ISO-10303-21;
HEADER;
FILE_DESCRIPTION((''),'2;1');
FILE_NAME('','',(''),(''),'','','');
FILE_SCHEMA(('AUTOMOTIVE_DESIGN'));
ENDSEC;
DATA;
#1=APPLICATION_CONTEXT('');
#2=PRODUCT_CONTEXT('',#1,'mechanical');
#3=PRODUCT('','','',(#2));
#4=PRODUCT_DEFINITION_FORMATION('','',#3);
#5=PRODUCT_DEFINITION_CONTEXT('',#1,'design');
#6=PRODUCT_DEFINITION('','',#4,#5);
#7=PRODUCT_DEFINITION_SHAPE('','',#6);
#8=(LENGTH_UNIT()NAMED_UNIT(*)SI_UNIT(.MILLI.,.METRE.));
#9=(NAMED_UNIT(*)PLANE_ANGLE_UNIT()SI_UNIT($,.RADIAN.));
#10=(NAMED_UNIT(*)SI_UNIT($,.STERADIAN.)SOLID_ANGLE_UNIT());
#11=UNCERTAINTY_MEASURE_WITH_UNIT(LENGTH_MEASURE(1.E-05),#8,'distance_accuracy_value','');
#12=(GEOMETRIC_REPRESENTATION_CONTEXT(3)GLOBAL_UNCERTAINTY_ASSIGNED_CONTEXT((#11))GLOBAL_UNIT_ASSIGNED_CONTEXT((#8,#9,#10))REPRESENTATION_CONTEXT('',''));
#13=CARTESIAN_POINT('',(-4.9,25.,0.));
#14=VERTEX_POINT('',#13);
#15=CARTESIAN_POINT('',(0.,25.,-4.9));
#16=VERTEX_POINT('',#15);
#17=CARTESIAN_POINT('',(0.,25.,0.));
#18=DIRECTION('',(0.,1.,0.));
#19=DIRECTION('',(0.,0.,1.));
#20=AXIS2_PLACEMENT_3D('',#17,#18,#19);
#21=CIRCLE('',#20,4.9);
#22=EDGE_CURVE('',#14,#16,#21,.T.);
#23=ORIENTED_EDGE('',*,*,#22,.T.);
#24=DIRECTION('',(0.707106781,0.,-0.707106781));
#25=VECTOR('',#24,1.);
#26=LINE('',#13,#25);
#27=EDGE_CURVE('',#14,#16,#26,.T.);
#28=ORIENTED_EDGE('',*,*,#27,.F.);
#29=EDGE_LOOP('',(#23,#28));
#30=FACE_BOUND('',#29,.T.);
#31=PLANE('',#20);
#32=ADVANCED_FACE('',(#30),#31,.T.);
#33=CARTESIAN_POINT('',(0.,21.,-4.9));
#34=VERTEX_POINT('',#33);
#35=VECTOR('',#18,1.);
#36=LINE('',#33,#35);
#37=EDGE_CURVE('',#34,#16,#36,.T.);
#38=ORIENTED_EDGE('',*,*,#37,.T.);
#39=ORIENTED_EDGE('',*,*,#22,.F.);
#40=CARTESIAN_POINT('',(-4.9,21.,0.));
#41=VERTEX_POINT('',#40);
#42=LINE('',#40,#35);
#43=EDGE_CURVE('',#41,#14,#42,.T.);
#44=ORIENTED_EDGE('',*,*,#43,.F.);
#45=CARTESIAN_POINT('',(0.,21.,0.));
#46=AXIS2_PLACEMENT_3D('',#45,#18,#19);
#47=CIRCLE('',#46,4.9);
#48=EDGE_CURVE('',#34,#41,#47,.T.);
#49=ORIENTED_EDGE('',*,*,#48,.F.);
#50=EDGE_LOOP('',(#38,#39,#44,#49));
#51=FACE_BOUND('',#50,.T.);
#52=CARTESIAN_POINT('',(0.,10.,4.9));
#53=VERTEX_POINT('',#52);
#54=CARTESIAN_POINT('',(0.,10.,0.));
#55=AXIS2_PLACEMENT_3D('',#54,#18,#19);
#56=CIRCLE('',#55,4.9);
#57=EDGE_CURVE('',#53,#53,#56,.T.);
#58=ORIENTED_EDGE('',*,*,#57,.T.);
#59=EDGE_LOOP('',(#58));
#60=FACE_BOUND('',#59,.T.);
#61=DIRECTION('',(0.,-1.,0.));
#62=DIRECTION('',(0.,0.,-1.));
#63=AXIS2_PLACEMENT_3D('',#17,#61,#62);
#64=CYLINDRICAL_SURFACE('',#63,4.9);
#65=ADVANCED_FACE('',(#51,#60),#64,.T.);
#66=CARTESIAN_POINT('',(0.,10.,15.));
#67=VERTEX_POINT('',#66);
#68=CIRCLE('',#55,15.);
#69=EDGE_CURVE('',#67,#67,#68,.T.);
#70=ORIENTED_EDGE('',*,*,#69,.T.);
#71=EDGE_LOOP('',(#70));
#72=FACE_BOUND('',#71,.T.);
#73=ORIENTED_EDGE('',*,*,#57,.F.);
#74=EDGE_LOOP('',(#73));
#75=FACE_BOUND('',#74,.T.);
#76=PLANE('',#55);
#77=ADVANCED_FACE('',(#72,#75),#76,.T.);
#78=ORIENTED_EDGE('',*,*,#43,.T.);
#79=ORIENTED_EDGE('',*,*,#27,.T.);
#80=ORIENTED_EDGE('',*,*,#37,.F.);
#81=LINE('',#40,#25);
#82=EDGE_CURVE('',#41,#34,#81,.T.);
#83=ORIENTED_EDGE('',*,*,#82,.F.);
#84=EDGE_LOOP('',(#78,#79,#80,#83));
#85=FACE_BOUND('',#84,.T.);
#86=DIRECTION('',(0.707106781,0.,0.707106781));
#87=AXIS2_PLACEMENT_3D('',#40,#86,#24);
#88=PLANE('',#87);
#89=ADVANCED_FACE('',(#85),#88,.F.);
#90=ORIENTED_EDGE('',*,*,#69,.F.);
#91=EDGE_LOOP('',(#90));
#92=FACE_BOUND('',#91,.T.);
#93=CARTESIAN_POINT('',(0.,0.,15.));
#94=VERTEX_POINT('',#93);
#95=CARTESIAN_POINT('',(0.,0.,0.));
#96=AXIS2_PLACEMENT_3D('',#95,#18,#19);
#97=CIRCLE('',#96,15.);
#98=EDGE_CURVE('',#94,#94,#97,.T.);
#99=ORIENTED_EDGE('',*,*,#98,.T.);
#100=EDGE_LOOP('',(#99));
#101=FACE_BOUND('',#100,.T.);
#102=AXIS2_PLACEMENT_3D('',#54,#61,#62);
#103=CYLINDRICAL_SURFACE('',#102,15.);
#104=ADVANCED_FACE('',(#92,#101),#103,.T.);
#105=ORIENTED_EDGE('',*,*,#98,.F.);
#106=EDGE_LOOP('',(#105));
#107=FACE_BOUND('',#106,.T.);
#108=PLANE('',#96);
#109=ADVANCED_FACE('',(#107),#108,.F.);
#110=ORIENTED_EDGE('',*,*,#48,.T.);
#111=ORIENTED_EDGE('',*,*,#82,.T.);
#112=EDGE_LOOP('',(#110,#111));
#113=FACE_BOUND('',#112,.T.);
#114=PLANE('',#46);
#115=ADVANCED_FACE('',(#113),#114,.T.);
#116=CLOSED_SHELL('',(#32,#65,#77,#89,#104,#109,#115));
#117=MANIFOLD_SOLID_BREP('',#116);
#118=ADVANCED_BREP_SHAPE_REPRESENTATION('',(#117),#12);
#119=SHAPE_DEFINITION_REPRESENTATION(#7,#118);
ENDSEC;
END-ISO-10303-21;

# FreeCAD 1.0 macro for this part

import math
import FreeCAD as App
import Part
import Sketcher

doc = App.newDocument("Part")
params = doc.addObject("Spreadsheet::Sheet", "Params")
for row, (alias, value) in enumerate([
    ("sketch1_diameter", "30 mm"),
    ("pad1_length", "10 mm"),
    ("sketch2_diameter", "9.8 mm"),
    ("pad2_length", "15 mm"),
    ("sketch3_radius", "4.9 mm"),
    ("pocket1_length", "4 mm"),
], start=1):
    params.set(f"A{row}", alias)
    params.set(f"B{row}", "=" + value)
    params.setAlias(f"B{row}", alias)

body = doc.addObject("PartDesign::Body", "Body")

sketch1 = doc.addObject("Sketcher::SketchObject", "Sketch")
body.addObject(sketch1)
sketch1.AttachmentSupport = (doc.XZ_Plane, [""])
sketch1.MapMode = "FlatFace"
sketch1.addGeometry(Part.Circle(App.Vector(0, 0, 0), App.Vector(0, 0, 1), 15), False)
sketch1.addConstraint(Sketcher.Constraint("Coincident", 0, 3, -1, 1))
sketch1.addConstraint(Sketcher.Constraint("Diameter", 0, 30.0))
sketch1.setExpression("Constraints[1]", "Params.sketch1_diameter")
pad1 = doc.addObject("PartDesign::Pad", "Pad")
body.addObject(pad1)
pad1.Profile = sketch1
pad1.setExpression("Length", "Params.pad1_length")
pad1.Reversed = True

sketch2 = doc.addObject("Sketcher::SketchObject", "Sketch001")
body.addObject(sketch2)
sketch2.AttachmentSupport = (doc.XZ_Plane, [""])
sketch2.MapMode = "FlatFace"
sketch2.AttachmentOffset = App.Placement(App.Vector(0, 0, -10), App.Rotation())
sketch2.addGeometry(Part.Circle(App.Vector(0, 0, 0), App.Vector(0, 0, 1), 4.9), False)
sketch2.addConstraint(Sketcher.Constraint("Coincident", 0, 3, -1, 1))
sketch2.addConstraint(Sketcher.Constraint("Diameter", 0, 9.8))
sketch2.setExpression("Constraints[1]", "Params.sketch2_diameter")
pad2 = doc.addObject("PartDesign::Pad", "Pad001")
body.addObject(pad2)
pad2.Profile = sketch2
pad2.setExpression("Length", "Params.pad2_length")
pad2.Reversed = True

sketch3 = doc.addObject("Sketcher::SketchObject", "Sketch002")
body.addObject(sketch3)
sketch3.AttachmentSupport = (doc.XZ_Plane, [""])
sketch3.MapMode = "FlatFace"
sketch3.AttachmentOffset = App.Placement(App.Vector(0, 0, -25), App.Rotation())
sketch3.addGeometry(Part.LineSegment(App.Vector(-4.9, 0, 0), App.Vector(0, -4.9, 0)), False)
sketch3.addGeometry(Part.ArcOfCircle(Part.Circle(App.Vector(0, 0, 0), App.Vector(0, 0, 1), 4.9), math.radians(180), math.radians(270)), False)
sketch3.addConstraint(Sketcher.Constraint("Coincident", 0, 1, 1, 1))
sketch3.addConstraint(Sketcher.Constraint("Coincident", 1, 2, 0, 2))
sketch3.addConstraint(Sketcher.Constraint("Coincident", 1, 3, -1, 1))
sketch3.addConstraint(Sketcher.Constraint("PointOnObject", 0, 1, -1))
sketch3.addConstraint(Sketcher.Constraint("PointOnObject", 1, 2, -2))
sketch3.addConstraint(Sketcher.Constraint("Radius", 1, 4.9))
sketch3.setExpression("Constraints[5]", "Params.sketch3_radius")
pocket1 = doc.addObject("PartDesign::Pocket", "Pocket")
body.addObject(pocket1)
pocket1.Profile = sketch3
pocket1.setExpression("Length", "Params.pocket1_length")
pocket1.Reversed = True

doc.recompute()
